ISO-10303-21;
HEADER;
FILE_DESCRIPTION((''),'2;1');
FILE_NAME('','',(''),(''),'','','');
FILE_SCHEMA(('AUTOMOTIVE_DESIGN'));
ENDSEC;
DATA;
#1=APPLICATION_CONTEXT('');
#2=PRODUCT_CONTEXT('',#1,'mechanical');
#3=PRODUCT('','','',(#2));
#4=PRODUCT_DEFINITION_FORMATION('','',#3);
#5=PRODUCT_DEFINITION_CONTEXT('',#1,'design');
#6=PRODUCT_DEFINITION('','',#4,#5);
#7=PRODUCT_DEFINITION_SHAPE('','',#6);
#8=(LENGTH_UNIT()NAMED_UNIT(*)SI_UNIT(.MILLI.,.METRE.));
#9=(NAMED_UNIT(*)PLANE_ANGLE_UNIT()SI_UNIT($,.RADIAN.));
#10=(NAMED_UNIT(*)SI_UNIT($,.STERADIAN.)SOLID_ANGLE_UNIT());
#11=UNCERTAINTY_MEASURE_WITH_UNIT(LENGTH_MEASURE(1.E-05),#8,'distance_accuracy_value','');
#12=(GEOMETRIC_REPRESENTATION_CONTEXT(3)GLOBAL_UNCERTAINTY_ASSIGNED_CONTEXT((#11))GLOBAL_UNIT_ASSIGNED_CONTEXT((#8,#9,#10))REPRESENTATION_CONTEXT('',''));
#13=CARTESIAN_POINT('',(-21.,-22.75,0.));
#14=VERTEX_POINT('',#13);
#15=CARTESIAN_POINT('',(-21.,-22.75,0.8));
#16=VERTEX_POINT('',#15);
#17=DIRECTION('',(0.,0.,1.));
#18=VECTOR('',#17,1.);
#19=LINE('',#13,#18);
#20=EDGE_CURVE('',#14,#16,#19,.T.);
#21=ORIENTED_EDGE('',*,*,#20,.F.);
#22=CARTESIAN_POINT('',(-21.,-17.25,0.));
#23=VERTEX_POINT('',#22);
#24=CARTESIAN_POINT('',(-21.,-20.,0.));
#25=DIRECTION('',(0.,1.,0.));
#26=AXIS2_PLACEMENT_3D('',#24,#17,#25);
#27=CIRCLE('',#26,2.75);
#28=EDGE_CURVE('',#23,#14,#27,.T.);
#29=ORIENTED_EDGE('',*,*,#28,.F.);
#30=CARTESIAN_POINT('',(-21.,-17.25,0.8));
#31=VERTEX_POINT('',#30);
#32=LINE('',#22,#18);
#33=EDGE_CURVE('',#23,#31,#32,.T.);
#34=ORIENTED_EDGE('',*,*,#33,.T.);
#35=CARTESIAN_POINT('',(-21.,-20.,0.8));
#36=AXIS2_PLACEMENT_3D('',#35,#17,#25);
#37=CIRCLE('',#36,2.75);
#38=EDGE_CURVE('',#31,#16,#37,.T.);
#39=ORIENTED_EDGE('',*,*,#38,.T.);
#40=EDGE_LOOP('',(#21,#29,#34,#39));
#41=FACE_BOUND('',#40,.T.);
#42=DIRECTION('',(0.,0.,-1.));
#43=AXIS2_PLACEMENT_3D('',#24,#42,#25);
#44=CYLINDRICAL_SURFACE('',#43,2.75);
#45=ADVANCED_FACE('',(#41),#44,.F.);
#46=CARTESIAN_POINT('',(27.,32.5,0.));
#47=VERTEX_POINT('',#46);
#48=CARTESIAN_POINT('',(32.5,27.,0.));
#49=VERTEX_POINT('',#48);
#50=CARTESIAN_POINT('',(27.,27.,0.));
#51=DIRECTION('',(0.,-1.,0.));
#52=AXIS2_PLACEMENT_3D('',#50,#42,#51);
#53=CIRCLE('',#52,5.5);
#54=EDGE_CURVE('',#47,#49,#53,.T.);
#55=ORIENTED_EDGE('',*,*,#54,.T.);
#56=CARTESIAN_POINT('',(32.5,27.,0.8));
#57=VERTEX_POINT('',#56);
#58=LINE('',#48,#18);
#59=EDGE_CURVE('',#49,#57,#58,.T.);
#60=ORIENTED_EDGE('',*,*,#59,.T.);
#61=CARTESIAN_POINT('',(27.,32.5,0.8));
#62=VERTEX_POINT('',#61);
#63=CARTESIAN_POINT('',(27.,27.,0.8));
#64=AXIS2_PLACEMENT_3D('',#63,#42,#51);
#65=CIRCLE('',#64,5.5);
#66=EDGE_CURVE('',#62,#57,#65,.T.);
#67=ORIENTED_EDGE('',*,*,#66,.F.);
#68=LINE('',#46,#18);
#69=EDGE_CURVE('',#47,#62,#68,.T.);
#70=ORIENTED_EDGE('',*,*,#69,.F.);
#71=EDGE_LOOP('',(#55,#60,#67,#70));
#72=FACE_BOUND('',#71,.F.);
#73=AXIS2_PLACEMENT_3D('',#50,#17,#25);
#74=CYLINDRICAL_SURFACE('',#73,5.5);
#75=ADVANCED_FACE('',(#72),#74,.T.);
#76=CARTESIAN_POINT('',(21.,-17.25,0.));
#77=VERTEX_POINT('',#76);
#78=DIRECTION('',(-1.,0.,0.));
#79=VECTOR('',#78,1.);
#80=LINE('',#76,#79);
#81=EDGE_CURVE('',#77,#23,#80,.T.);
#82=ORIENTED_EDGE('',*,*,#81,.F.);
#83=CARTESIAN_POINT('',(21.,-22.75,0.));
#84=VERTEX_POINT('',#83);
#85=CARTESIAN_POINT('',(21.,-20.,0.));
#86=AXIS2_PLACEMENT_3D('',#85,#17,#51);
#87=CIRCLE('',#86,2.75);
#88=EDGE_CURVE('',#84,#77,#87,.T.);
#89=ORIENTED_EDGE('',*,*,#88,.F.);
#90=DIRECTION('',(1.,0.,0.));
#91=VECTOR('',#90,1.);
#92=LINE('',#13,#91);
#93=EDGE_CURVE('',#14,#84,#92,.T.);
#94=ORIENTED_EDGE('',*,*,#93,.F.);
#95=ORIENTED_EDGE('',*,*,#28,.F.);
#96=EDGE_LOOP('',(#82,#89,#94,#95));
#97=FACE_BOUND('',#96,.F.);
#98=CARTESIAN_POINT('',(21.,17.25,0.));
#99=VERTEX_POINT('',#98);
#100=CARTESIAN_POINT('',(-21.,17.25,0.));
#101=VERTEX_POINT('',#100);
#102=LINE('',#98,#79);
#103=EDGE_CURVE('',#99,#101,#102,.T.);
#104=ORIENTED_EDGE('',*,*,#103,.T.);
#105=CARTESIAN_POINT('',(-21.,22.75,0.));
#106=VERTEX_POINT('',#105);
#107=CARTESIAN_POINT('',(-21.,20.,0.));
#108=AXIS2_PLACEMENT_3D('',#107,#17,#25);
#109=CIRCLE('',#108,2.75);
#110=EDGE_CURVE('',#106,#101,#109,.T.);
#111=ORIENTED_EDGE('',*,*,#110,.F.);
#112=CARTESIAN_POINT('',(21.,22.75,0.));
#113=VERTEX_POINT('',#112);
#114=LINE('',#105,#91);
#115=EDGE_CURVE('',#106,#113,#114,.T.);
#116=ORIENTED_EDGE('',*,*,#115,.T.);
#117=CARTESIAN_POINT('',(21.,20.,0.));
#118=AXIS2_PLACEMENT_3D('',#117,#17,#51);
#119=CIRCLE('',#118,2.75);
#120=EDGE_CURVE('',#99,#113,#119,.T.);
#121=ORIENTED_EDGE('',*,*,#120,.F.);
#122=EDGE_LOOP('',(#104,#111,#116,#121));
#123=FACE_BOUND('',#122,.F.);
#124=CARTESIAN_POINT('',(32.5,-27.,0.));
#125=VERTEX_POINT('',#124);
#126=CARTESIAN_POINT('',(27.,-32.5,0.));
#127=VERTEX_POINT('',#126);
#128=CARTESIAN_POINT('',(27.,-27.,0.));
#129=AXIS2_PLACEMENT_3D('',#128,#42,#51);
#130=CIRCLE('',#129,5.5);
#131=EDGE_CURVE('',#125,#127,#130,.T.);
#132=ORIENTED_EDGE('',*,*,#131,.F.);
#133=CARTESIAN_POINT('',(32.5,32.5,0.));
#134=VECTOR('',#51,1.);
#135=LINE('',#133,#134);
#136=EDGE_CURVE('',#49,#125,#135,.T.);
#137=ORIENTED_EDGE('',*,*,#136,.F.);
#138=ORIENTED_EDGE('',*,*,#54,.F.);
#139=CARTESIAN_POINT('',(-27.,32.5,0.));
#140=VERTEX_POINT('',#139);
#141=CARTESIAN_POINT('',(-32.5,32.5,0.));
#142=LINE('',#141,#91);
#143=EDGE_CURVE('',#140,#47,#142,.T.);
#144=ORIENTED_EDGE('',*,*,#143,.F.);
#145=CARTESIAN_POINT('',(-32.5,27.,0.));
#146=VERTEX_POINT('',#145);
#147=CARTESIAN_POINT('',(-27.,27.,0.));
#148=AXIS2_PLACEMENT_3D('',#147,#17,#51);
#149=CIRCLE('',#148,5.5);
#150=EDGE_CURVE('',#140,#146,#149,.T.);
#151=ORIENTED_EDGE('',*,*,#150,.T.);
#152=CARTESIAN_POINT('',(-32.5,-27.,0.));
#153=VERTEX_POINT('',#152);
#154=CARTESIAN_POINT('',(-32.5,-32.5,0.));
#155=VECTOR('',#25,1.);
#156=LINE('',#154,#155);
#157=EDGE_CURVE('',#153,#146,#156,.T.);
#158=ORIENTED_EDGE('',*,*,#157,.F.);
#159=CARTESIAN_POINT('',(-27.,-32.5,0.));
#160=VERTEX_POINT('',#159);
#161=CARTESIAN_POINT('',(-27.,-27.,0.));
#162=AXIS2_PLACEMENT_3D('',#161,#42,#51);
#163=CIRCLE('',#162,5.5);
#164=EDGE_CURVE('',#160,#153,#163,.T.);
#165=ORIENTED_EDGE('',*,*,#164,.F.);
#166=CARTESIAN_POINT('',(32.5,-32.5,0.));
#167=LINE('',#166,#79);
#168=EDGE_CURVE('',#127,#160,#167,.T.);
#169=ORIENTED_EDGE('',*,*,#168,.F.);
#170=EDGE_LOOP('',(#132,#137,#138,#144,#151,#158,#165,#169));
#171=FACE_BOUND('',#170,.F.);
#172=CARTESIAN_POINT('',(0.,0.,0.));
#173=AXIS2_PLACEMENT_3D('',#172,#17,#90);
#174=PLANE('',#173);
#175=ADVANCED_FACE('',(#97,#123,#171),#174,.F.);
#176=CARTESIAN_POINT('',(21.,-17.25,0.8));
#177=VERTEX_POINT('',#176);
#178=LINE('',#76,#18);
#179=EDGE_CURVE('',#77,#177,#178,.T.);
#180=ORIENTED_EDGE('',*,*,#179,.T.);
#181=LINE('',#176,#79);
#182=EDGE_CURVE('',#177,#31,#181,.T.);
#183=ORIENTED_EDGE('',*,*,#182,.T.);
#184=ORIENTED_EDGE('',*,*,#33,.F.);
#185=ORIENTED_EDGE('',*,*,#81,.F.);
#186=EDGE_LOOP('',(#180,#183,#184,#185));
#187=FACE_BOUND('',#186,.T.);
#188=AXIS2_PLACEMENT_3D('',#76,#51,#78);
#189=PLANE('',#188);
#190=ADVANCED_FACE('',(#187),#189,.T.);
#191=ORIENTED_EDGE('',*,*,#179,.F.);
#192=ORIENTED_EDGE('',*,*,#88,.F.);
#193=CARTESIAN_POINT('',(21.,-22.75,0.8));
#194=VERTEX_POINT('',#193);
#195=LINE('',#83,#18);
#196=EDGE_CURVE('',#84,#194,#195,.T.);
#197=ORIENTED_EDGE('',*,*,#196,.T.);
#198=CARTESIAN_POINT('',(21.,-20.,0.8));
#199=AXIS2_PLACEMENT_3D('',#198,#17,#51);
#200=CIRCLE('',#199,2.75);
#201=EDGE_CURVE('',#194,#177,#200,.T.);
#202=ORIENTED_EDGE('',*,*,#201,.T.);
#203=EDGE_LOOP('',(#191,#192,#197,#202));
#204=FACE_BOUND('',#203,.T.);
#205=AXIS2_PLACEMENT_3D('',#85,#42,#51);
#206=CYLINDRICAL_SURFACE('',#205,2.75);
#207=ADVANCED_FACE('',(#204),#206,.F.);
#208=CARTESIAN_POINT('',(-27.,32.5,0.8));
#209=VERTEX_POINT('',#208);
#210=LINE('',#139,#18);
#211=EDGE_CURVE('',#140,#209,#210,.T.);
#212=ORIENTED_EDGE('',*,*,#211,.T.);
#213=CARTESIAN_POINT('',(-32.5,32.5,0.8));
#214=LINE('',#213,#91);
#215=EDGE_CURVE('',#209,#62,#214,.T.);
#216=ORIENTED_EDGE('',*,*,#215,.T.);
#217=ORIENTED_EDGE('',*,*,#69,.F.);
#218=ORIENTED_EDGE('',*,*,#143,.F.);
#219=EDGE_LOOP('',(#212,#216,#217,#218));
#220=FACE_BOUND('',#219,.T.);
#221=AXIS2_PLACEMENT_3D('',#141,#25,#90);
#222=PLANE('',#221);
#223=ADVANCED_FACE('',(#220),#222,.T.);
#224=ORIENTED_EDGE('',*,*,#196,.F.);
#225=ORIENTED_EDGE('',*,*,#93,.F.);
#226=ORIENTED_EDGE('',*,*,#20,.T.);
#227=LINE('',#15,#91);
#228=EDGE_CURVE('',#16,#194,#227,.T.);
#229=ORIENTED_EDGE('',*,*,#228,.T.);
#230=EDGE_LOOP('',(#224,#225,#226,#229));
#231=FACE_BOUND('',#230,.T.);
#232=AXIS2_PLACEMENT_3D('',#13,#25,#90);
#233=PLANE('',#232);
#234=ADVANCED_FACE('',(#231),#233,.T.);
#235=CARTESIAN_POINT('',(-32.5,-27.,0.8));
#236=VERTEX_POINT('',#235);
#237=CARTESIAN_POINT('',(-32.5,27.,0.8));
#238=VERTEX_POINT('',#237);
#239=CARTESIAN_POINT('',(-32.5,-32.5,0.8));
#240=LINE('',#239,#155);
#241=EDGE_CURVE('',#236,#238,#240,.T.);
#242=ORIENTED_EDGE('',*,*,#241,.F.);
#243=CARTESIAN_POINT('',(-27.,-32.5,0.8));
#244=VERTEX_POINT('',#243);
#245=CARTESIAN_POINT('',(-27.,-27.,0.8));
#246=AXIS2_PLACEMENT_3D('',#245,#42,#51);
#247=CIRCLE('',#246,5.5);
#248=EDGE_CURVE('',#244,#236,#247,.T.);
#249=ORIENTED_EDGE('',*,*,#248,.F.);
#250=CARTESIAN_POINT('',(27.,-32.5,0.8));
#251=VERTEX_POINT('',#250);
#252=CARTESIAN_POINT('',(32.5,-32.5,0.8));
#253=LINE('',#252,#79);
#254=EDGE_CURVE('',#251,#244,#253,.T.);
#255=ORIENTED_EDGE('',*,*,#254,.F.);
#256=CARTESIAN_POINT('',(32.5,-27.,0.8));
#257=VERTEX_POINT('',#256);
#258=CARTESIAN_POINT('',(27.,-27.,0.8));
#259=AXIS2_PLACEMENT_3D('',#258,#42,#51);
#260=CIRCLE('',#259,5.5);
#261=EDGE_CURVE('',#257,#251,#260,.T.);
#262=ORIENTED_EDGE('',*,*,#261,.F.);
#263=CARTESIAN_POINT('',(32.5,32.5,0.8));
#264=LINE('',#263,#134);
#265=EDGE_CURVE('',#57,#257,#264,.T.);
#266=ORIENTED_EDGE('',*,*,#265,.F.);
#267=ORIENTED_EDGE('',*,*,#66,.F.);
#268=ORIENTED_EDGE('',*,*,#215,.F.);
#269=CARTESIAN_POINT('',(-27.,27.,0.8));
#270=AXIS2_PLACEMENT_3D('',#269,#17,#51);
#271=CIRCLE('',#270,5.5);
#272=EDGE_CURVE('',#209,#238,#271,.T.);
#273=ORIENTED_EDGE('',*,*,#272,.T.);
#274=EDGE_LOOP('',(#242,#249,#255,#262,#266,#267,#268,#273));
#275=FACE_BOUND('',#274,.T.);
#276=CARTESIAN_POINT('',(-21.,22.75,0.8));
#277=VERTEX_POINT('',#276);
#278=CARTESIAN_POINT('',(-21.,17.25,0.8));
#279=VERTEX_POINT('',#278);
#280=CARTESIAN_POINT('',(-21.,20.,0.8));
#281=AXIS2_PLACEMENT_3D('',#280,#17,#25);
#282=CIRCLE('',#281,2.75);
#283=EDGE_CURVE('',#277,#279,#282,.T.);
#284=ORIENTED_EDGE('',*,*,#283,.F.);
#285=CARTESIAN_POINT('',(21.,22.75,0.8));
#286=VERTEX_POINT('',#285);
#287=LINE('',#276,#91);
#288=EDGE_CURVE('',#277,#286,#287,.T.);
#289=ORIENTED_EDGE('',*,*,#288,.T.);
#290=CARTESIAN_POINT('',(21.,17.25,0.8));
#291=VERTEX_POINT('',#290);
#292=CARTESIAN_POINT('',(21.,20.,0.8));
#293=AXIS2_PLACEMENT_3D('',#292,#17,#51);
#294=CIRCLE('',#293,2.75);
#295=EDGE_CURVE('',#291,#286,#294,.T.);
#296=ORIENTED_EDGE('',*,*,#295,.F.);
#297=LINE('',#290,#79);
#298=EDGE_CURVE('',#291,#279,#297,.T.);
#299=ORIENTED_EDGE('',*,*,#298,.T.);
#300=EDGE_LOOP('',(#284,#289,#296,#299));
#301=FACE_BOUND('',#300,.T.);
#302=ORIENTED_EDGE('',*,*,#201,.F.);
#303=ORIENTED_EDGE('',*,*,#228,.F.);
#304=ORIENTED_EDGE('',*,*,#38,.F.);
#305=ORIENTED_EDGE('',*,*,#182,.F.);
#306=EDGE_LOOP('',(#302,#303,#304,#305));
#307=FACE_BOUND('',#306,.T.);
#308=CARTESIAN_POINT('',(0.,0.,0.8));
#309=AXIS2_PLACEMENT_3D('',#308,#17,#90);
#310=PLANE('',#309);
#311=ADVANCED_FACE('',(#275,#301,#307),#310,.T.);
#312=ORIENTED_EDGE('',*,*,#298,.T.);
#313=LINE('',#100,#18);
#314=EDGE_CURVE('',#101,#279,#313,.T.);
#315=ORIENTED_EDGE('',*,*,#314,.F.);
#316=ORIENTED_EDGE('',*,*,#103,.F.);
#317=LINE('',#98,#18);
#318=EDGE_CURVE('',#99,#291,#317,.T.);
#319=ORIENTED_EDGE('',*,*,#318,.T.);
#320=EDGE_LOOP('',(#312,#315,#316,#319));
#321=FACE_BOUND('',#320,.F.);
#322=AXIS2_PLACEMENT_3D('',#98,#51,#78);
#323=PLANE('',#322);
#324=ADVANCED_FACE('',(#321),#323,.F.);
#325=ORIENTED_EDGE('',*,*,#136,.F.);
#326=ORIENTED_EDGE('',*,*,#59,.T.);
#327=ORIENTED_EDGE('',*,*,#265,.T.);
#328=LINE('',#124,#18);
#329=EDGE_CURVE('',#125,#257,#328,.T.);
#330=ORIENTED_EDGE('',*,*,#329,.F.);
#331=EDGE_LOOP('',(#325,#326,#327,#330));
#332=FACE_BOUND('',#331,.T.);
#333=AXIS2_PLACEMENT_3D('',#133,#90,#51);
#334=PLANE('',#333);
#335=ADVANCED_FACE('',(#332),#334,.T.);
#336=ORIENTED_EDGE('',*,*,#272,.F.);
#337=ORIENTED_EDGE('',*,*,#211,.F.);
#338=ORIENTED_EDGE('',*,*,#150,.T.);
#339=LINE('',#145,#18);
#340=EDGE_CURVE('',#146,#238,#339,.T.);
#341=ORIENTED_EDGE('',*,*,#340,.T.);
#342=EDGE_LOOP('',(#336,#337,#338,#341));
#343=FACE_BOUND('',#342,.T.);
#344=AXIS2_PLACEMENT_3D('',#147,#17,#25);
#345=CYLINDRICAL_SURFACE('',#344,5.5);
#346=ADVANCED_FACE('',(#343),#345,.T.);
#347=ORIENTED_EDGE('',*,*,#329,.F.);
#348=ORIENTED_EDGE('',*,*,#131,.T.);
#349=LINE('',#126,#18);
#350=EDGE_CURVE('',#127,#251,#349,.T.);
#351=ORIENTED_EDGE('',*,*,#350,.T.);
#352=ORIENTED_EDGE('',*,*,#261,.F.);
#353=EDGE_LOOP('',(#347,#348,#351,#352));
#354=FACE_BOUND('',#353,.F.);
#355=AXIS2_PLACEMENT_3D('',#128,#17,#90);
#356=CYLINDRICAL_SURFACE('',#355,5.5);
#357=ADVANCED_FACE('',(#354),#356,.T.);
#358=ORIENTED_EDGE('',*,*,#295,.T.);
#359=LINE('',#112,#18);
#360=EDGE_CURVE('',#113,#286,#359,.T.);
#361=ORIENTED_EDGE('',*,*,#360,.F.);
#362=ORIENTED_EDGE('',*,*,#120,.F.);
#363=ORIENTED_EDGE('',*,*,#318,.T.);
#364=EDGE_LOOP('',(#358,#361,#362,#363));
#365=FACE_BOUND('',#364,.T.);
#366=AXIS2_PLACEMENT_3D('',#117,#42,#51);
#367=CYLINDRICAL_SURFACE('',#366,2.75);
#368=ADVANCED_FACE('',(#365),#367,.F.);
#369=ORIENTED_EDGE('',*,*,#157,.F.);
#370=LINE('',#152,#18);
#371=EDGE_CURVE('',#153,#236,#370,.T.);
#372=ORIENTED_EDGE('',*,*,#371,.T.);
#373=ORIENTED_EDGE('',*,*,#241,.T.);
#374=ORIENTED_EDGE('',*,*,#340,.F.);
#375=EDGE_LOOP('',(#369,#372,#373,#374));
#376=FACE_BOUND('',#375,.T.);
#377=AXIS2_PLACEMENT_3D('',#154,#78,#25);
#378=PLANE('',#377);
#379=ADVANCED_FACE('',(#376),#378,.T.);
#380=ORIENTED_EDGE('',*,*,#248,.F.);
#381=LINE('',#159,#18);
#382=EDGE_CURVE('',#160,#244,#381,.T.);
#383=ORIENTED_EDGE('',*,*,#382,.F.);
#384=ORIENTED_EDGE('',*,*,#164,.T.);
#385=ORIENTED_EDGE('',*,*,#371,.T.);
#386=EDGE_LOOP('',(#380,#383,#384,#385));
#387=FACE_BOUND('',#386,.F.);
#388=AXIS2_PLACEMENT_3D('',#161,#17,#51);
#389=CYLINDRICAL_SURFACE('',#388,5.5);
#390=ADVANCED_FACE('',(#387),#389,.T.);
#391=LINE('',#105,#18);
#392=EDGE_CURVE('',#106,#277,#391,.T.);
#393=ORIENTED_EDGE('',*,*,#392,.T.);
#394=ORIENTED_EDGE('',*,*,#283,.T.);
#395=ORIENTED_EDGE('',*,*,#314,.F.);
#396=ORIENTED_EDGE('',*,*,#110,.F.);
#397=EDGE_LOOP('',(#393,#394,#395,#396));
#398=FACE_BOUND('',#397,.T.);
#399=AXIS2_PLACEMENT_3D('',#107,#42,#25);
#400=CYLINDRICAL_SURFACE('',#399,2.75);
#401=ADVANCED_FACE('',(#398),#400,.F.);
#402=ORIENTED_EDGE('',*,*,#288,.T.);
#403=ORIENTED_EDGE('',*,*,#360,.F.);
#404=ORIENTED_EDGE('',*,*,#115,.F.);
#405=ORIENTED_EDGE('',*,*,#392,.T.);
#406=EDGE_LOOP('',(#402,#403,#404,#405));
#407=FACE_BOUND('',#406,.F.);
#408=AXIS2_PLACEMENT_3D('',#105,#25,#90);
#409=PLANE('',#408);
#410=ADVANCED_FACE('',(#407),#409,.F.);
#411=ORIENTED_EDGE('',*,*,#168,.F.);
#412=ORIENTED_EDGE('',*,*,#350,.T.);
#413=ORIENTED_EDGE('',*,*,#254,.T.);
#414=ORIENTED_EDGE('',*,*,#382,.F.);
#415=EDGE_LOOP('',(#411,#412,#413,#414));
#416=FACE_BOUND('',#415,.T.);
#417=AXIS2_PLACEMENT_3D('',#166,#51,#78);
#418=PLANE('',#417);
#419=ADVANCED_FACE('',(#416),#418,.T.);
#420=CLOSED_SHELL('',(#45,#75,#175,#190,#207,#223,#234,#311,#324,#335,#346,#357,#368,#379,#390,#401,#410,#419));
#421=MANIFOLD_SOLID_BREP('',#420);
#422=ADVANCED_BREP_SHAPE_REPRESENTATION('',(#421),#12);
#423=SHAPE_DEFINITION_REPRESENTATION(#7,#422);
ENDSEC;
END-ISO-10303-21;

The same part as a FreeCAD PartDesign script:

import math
import FreeCAD as App
import Part
import Sketcher
from FreeCAD import Vector


def edges_at(feature, points):
    """Names of the edges that pass closest to the given points."""
    edges = feature.Shape.Edges
    near = lambda p: min(range(len(edges)), key=lambda i: edges[i].distToShape(Part.Vertex(*p))[0])
    return sorted({f"Edge{near(p) + 1}" for p in points})


def add_polygon(sketch, points):
    """Adds a closed chain of lines whose ends are joined by coincident constraints."""
    first, n = sketch.GeometryCount, len(points)
    for a, b in zip(points, points[1:] + points[:1]):
        sketch.addGeometry(Part.LineSegment(App.Vector(*a, 0), App.Vector(*b, 0)), False)
    for i in range(n):
        sketch.addConstraint(Sketcher.Constraint("Coincident", first + i, 2, first + (i + 1) % n, 1))

doc = App.newDocument("Part")
body = doc.addObject("PartDesign::Body", "Body")

# Sketch on XY plane
sketch1 = body.newObject("Sketcher::SketchObject", "Sketch")
sketch1.AttachmentSupport = (doc.getObject("XY_Plane"), [""])
sketch1.MapMode = "FlatFace"
add_polygon(sketch1, [(32.5, 32.5), (-32.5, 32.5), (-32.5, -32.5), (32.5, -32.5)])  # lines 0-3
sketch1.addGeometry(Part.LineSegment(Vector(21, -22.75, 0), Vector(-21, -22.75, 0)), False)  # 4
sketch1.addGeometry(Part.ArcOfCircle(Part.Circle(Vector(-21, -20, 0), Vector(0, 0, 1), 2.75), math.radians(90), math.radians(270)), False)  # 5
sketch1.addGeometry(Part.LineSegment(Vector(-21, -17.25, 0), Vector(21, -17.25, 0)), False)  # 6
sketch1.addGeometry(Part.ArcOfCircle(Part.Circle(Vector(21, -20, 0), Vector(0, 0, 1), 2.75), math.radians(-90), math.radians(90)), False)  # 7
sketch1.addGeometry(Part.ArcOfCircle(Part.Circle(Vector(21, 20, 0), Vector(0, 0, 1), 2.75), math.radians(-90), math.radians(90)), False)  # 8
sketch1.addGeometry(Part.LineSegment(Vector(21, 17.25, 0), Vector(-21, 17.25, 0)), False)  # 9
sketch1.addGeometry(Part.ArcOfCircle(Part.Circle(Vector(-21, 20, 0), Vector(0, 0, 1), 2.75), math.radians(90), math.radians(270)), False)  # 10
sketch1.addGeometry(Part.LineSegment(Vector(-21, 22.75, 0), Vector(21, 22.75, 0)), False)  # 11
sketch1.addConstraint([
    Sketcher.Constraint("Tangent", 4, 2, 5, 2),
    Sketcher.Constraint("Tangent", 5, 1, 6, 1),
    Sketcher.Constraint("Tangent", 6, 2, 7, 2),
    Sketcher.Constraint("Tangent", 7, 1, 4, 1),
    Sketcher.Constraint("Tangent", 8, 1, 9, 1),
    Sketcher.Constraint("Tangent", 9, 2, 10, 2),
    Sketcher.Constraint("Tangent", 10, 1, 11, 1),
    Sketcher.Constraint("Tangent", 11, 2, 8, 2),
    Sketcher.Constraint("Horizontal", 0),
    Sketcher.Constraint("Vertical", 1),
    Sketcher.Constraint("Horizontal", 2),
    Sketcher.Constraint("Vertical", 3),
    Sketcher.Constraint("Horizontal", 4),
    Sketcher.Constraint("Horizontal", 6),
    Sketcher.Constraint("Horizontal", 9),
    Sketcher.Constraint("Horizontal", 11),
    Sketcher.Constraint("Equal", 7, 8),
    Sketcher.Constraint("Symmetric", 5, 3, 8, 3, -1, 1),
    Sketcher.Constraint("Symmetric", 0, 2, 2, 2, -1, 1),
    Sketcher.Constraint("Vertical", 7, 3, 8, 3),
    Sketcher.Constraint("Vertical", 5, 3, 10, 3),
    Sketcher.Constraint("Equal", 2, 1),
    Sketcher.Constraint("DistanceX", 0, 2, 0, 1, 65.0),
    Sketcher.Constraint("Radius", 5, 2.75),
    Sketcher.Constraint("DistanceX", 4, 2, 4, 1, 42.0),
    Sketcher.Constraint("DistanceY", 5, 3, -1, 1, 20.0),
])
pad1 = body.newObject("PartDesign::Pad", "Pad")
pad1.Profile = sketch1
pad1.Length = 0.8
doc.recompute()

fillet = body.newObject("PartDesign::Fillet", "Fillet")
fillet.Base = (pad1, edges_at(pad1, [
    (32.5, -32.5, 0.4),
    (32.5, 32.5, 0.4),
    (-32.5, 32.5, 0.4),
    (-32.5, -32.5, 0.4),
]))
fillet.Radius = 5.5

doc.recompute()
